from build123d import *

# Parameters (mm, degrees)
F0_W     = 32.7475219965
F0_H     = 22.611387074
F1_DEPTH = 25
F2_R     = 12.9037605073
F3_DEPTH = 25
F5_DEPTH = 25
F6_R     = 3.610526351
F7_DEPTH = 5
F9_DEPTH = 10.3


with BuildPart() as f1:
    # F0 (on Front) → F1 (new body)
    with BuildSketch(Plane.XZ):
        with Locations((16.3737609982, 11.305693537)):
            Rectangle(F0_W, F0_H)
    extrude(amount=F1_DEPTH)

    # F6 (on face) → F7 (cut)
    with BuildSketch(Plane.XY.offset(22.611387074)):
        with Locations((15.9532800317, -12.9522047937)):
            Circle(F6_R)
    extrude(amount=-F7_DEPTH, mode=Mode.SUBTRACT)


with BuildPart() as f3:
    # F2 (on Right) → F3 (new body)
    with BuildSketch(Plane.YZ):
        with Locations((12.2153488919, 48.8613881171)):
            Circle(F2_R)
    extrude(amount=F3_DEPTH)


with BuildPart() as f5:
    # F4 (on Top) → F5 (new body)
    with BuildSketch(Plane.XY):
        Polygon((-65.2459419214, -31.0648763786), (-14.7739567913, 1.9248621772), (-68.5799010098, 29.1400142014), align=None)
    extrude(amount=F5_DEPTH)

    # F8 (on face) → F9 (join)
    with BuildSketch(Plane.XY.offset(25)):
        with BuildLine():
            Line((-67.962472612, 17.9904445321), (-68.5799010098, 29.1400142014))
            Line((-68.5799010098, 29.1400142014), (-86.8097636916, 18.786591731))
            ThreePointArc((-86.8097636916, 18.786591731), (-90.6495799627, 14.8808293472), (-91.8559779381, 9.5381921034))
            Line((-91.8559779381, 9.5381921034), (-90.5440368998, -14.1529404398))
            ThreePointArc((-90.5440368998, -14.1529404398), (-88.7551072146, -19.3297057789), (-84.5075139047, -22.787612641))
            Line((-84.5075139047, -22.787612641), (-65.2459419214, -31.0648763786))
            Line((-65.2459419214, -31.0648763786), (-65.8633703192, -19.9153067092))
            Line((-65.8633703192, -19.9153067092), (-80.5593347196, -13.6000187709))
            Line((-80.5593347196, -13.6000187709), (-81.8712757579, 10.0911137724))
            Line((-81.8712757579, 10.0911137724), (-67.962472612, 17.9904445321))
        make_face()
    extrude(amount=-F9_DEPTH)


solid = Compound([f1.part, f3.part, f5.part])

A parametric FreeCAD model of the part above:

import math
import FreeCAD as App
import Part
import Sketcher

doc = App.newDocument("Part")
params = doc.addObject("Spreadsheet::Sheet", "Params")
for row, (alias, value) in enumerate([
    ("pad1_length", "25 mm"),
    ("pocket1_length", "5 mm"),
    ("pad2_length", "25 mm"),
    ("pad3_length", "25 mm"),
    ("sketch5_radius", "10 mm"),
    ("pad4_length", "10.3 mm"),
], start=1):
    params.set(f"A{row}", alias)
    params.set(f"B{row}", "=" + value)
    params.setAlias(f"B{row}", alias)

body = doc.addObject("PartDesign::Body", "Body")

sketch1 = body.newObject("Sketcher::SketchObject", "Sketch")
sketch1.AttachmentSupport = (doc.getObject("XZ_Plane"), [""])
sketch1.MapMode = "FlatFace"
sketch1.addGeometry(Part.LineSegment(App.Vector(0, 23, 0), App.Vector(0, 0, 0)), False)
sketch1.addGeometry(Part.LineSegment(App.Vector(0, 0, 0), App.Vector(33, 0, 0)), False)
sketch1.addGeometry(Part.LineSegment(App.Vector(33, 0, 0), App.Vector(33, 23, 0)), False)
sketch1.addGeometry(Part.LineSegment(App.Vector(33, 23, 0), App.Vector(0, 23, 0)), False)
sketch1.addConstraint(Sketcher.Constraint("Coincident", 0, 2, 1, 1))
sketch1.addConstraint(Sketcher.Constraint("Coincident", 1, 2, 2, 1))
sketch1.addConstraint(Sketcher.Constraint("Coincident", 2, 2, 3, 1))
sketch1.addConstraint(Sketcher.Constraint("Coincident", 3, 2, 0, 1))
sketch1.addConstraint(Sketcher.Constraint("Vertical", 0))
sketch1.addConstraint(Sketcher.Constraint("Horizontal", 1))
sketch1.addConstraint(Sketcher.Constraint("Vertical", 2))
sketch1.addConstraint(Sketcher.Constraint("Horizontal", 3))
sketch1.addConstraint(Sketcher.Constraint("Coincident", 0, 2, -1, 1))
sketch1.addConstraint(Sketcher.Constraint("DistanceX", 1, 1, 1, 2, 32.747522))
sketch1.addConstraint(Sketcher.Constraint("DistanceY", 0, 2, 0, 1, 22.611387))
pad1 = body.newObject("PartDesign::Pad", "Pad")
pad1.Profile = sketch1
pad1.setExpression("Length", "Params.pad1_length")

sketch2 = body.newObject("Sketcher::SketchObject", "Sketch001")
sketch2.AttachmentSupport = (doc.getObject("XY_Plane"), [""])
sketch2.MapMode = "FlatFace"
sketch2.AttachmentOffset = App.Placement(App.Vector(0, 0, 22.611387), App.Rotation())
sketch2.addGeometry(Part.Circle(App.Vector(16, -13, 0), App.Vector(0, 0, 1), 3.6), False)
sketch2.addConstraint(Sketcher.Constraint("Diameter", 0, 7.221053))
sketch2.addConstraint(Sketcher.Constraint("DistanceX", -1, 1, 0, 3, 15.95328))
sketch2.addConstraint(Sketcher.Constraint("DistanceY", 0, 3, -1, 1, 12.952205))
pocket1 = body.newObject("PartDesign::Pocket", "Pocket")
pocket1.Profile = sketch2
pocket1.setExpression("Length", "Params.pocket1_length")
body2 = doc.addObject("PartDesign::Body", "Body001")

sketch3 = body2.newObject("Sketcher::SketchObject", "Sketch002")
sketch3.AttachmentSupport = (doc.getObject("YZ_Plane001"), [""])
sketch3.MapMode = "FlatFace"
sketch3.addGeometry(Part.Circle(App.Vector(12, 49, 0), App.Vector(0, 0, 1), 13), False)
sketch3.addConstraint(Sketcher.Constraint("Diameter", 0, 25.807521))
sketch3.addConstraint(Sketcher.Constraint("DistanceX", -1, 1, 0, 3, 12.215349))
sketch3.addConstraint(Sketcher.Constraint("DistanceY", -1, 1, 0, 3, 48.861388))
pad2 = body2.newObject("PartDesign::Pad", "Pad001")
pad2.Profile = sketch3
pad2.setExpression("Length", "Params.pad2_length")
body3 = doc.addObject("PartDesign::Body", "Body002")

sketch4 = body3.newObject("Sketcher::SketchObject", "Sketch003")
sketch4.AttachmentSupport = (doc.getObject("XY_Plane002"), [""])
sketch4.MapMode = "FlatFace"
sketch4.addGeometry(Part.LineSegment(App.Vector(-65, -31, 0), App.Vector(-15, 2, 0)), False)
sketch4.addGeometry(Part.LineSegment(App.Vector(-15, 2, 0), App.Vector(-69, 29, 0)), False)
sketch4.addGeometry(Part.LineSegment(App.Vector(-69, 29, 0), App.Vector(-65, -31, 0)), False)
sketch4.addConstraint(Sketcher.Constraint("Coincident", 0, 2, 1, 1))
sketch4.addConstraint(Sketcher.Constraint("Coincident", 1, 2, 2, 1))
sketch4.addConstraint(Sketcher.Constraint("Coincident", 2, 2, 0, 1))
sketch4.addConstraint(Sketcher.Constraint("Equal", 0, 1))
sketch4.addConstraint(Sketcher.Constraint("Equal", 1, 2))
sketch4.addConstraint(Sketcher.Constraint("DistanceX", 1, 2, -1, 1, 68.579901))
sketch4.addConstraint(Sketcher.Constraint("DistanceX", 2, 2, -1, 1, 65.245942))
sketch4.addConstraint(Sketcher.Constraint("DistanceY", 2, 2, 0, 2, 32.989739))
sketch4.addConstraint(Sketcher.Constraint("DistanceY", -1, 1, 0, 2, 1.924862))
pad3 = body3.newObject("PartDesign::Pad", "Pad002")
pad3.Profile = sketch4
pad3.setExpression("Length", "Params.pad3_length")

sketch5 = body3.newObject("Sketcher::SketchObject", "Sketch004")
sketch5.AttachmentSupport = (doc.getObject("XY_Plane002"), [""])
sketch5.MapMode = "FlatFace"
sketch5.AttachmentOffset = App.Placement(App.Vector(0, 0, 25), App.Rotation())
sketch5.addGeometry(Part.LineSegment(App.Vector(-68, 18, 0), App.Vector(-69, 29, 0)), False)
sketch5.addGeometry(Part.LineSegment(App.Vector(-69, 29, 0), App.Vector(-87, 19, 0)), False)
sketch5.addGeometry(Part.ArcOfCircle(Part.Circle(App.Vector(-82, 10, 0), App.Vector(0, 0, 1), 10), math.radians(120), math.radians(183)), False)
sketch5.addGeometry(Part.LineSegment(App.Vector(-92, 10, 0), App.Vector(-91, -14, 0)), False)
sketch5.addGeometry(Part.ArcOfCircle(Part.Circle(App.Vector(-81, -14, 0), App.Vector(0, 0, 1), 10), math.radians(-177), math.radians(-113)), False)
sketch5.addGeometry(Part.LineSegment(App.Vector(-85, -23, 0), App.Vector(-65, -31, 0)), False)
sketch5.addGeometry(Part.LineSegment(App.Vector(-65, -31, 0), App.Vector(-66, -20, 0)), False)
sketch5.addGeometry(Part.LineSegment(App.Vector(-66, -20, 0), App.Vector(-81, -14, 0)), False)
sketch5.addGeometry(Part.LineSegment(App.Vector(-81, -14, 0), App.Vector(-82, 10, 0)), False)
sketch5.addGeometry(Part.LineSegment(App.Vector(-82, 10, 0), App.Vector(-68, 18, 0)), False)
sketch5.addConstraint(Sketcher.Constraint("Coincident", 0, 2, 1, 1))
sketch5.addConstraint(Sketcher.Constraint("Tangent", 1, 2, 2, 1))
sketch5.addConstraint(Sketcher.Constraint("Tangent", 2, 2, 3, 1))
sketch5.addConstraint(Sketcher.Constraint("Tangent", 3, 2, 4, 1))
sketch5.addConstraint(Sketcher.Constraint("Tangent", 4, 2, 5, 1))
sketch5.addConstraint(Sketcher.Constraint("Coincident", 5, 2, 6, 1))
sketch5.addConstraint(Sketcher.Constraint("Coincident", 6, 2, 7, 1))
sketch5.addConstraint(Sketcher.Constraint("Coincident", 7, 2, 8, 1))
sketch5.addConstraint(Sketcher.Constraint("Coincident", 8, 2, 9, 1))
sketch5.addConstraint(Sketcher.Constraint("Coincident", 9, 2, 0, 1))
sketch5.addConstraint(Sketcher.Constraint("Coincident", 7, 2, 4, 3))
sketch5.addConstraint(Sketcher.Constraint("Coincident", 8, 2, 2, 3))
sketch5.addConstraint(Sketcher.Constraint("Equal", 2, 4))
sketch5.addConstraint(Sketcher.Constraint("Parallel", 0, 3))
sketch5.addConstraint(Sketcher.Constraint("Parallel", 3, 6))
sketch5.addConstraint(Sketcher.Constraint("Parallel", 5, 7))
sketch5.addConstraint(Sketcher.Constraint("Parallel", 1, 9))
sketch5.addConstraint(Sketcher.Constraint("Equal", 1, 5))
sketch5.addConstraint(Sketcher.Constraint("Equal", 0, 6))
sketch5.addConstraint(Sketcher.Constraint("Radius", 2, 10.0))
sketch5.addConstraint(Sketcher.Constraint("DistanceX", 0, 2, -1, 1, 68.579901))
sketch5.addConstraint(Sketcher.Constraint("DistanceY", 2, 3, 0, 2, 19.0489))
sketch5.addConstraint(Sketcher.Constraint("DistanceY", 2, 2, 1, 2, 9.2484))
sketch5.addConstraint(Sketcher.Constraint("Distance", 3, 23.72743))
sketch5.addConstraint(Sketcher.Constraint("DistanceY", 4, 3, -1, 1, 13.600019))
sketch5.addConstraint(Sketcher.Constraint("DistanceY", -1, 1, 1, 2, 18.786592))
sketch5.setExpression("Constraints[19]", "Params.sketch5_radius")
pad4 = body3.newObject("PartDesign::Pad", "Pad003")
pad4.Profile = sketch5
pad4.setExpression("Length", "Params.pad4_length")
pad4.Reversed = True

doc.recompute()
